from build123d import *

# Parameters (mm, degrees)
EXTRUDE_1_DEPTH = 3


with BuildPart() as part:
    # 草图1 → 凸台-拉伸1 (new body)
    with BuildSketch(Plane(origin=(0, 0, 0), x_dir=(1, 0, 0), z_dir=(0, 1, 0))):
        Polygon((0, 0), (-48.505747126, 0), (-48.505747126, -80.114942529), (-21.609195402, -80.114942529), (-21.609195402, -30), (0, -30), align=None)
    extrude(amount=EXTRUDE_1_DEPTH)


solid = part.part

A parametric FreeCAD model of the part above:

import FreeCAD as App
import Part
import Sketcher
from FreeCAD import Vector
Q = App.Units.Quantity

doc = App.newDocument("Part")
body = doc.addObject("PartDesign::Body", "Body")

sketch1 = body.newObject("Sketcher::SketchObject", "Sketch")
sketch1.AttachmentSupport = (doc.getObject("XZ_Plane"), [""])
sketch1.MapMode = "FlatFace"
sketch1.addGeometry(Part.LineSegment(Vector(0, 0, 0), Vector(-48.505747, 0, 0)), False)
sketch1.addGeometry(Part.LineSegment(Vector(-48.505747, 0, 0), Vector(-48.505747, 80.114943, 0)), False)
sketch1.addGeometry(Part.LineSegment(Vector(-48.505747, 80.114943, 0), Vector(-21.609195, 80.114943, 0)), False)
sketch1.addGeometry(Part.LineSegment(Vector(-21.609195, 80.114943, 0), Vector(-21.609195, 30, 0)), False)
sketch1.addGeometry(Part.LineSegment(Vector(-21.609195, 30, 0), Vector(0, 30, 0)), False)
sketch1.addGeometry(Part.LineSegment(Vector(0, 30, 0), Vector(0, 0, 0)), False)
sketch1.addConstraint(Sketcher.Constraint("Coincident", 0, 2, 1, 1))
sketch1.addConstraint(Sketcher.Constraint("Coincident", 1, 2, 2, 1))
sketch1.addConstraint(Sketcher.Constraint("Coincident", 2, 2, 3, 1))
sketch1.addConstraint(Sketcher.Constraint("Coincident", 3, 2, 4, 1))
sketch1.addConstraint(Sketcher.Constraint("Coincident", 4, 2, 5, 1))
sketch1.addConstraint(Sketcher.Constraint("Coincident", 5, 2, 0, 1))
sketch1.addConstraint(Sketcher.Constraint("Horizontal", 0))
sketch1.addConstraint(Sketcher.Constraint("Vertical", 1))
sketch1.addConstraint(Sketcher.Constraint("Horizontal", 2))
sketch1.addConstraint(Sketcher.Constraint("Vertical", 3))
sketch1.addConstraint(Sketcher.Constraint("Horizontal", 4))
sketch1.addConstraint(Sketcher.Constraint("Vertical", 5))
sketch1.addConstraint(Sketcher.Constraint("Coincident", 5, 2, -1, 1))
sketch1.addConstraint(Sketcher.Constraint("DistanceY", 5, 2, 5, 1, Q("30 mm")))
sketch1.addConstraint(Sketcher.Constraint("DistanceX", 2, 1, 2, 2, Q("26.896552 mm")))
sketch1.addConstraint(Sketcher.Constraint("DistanceX", 0, 2, 0, 1, Q("48.505747 mm")))
sketch1.addConstraint(Sketcher.Constraint("DistanceY", 1, 1, 1, 2, Q("80.114943 mm")))
pad1 = body.newObject("PartDesign::Pad", "Pad")
pad1.Profile = sketch1
pad1.Length = 3
pad1.Reversed = True

doc.recompute()
